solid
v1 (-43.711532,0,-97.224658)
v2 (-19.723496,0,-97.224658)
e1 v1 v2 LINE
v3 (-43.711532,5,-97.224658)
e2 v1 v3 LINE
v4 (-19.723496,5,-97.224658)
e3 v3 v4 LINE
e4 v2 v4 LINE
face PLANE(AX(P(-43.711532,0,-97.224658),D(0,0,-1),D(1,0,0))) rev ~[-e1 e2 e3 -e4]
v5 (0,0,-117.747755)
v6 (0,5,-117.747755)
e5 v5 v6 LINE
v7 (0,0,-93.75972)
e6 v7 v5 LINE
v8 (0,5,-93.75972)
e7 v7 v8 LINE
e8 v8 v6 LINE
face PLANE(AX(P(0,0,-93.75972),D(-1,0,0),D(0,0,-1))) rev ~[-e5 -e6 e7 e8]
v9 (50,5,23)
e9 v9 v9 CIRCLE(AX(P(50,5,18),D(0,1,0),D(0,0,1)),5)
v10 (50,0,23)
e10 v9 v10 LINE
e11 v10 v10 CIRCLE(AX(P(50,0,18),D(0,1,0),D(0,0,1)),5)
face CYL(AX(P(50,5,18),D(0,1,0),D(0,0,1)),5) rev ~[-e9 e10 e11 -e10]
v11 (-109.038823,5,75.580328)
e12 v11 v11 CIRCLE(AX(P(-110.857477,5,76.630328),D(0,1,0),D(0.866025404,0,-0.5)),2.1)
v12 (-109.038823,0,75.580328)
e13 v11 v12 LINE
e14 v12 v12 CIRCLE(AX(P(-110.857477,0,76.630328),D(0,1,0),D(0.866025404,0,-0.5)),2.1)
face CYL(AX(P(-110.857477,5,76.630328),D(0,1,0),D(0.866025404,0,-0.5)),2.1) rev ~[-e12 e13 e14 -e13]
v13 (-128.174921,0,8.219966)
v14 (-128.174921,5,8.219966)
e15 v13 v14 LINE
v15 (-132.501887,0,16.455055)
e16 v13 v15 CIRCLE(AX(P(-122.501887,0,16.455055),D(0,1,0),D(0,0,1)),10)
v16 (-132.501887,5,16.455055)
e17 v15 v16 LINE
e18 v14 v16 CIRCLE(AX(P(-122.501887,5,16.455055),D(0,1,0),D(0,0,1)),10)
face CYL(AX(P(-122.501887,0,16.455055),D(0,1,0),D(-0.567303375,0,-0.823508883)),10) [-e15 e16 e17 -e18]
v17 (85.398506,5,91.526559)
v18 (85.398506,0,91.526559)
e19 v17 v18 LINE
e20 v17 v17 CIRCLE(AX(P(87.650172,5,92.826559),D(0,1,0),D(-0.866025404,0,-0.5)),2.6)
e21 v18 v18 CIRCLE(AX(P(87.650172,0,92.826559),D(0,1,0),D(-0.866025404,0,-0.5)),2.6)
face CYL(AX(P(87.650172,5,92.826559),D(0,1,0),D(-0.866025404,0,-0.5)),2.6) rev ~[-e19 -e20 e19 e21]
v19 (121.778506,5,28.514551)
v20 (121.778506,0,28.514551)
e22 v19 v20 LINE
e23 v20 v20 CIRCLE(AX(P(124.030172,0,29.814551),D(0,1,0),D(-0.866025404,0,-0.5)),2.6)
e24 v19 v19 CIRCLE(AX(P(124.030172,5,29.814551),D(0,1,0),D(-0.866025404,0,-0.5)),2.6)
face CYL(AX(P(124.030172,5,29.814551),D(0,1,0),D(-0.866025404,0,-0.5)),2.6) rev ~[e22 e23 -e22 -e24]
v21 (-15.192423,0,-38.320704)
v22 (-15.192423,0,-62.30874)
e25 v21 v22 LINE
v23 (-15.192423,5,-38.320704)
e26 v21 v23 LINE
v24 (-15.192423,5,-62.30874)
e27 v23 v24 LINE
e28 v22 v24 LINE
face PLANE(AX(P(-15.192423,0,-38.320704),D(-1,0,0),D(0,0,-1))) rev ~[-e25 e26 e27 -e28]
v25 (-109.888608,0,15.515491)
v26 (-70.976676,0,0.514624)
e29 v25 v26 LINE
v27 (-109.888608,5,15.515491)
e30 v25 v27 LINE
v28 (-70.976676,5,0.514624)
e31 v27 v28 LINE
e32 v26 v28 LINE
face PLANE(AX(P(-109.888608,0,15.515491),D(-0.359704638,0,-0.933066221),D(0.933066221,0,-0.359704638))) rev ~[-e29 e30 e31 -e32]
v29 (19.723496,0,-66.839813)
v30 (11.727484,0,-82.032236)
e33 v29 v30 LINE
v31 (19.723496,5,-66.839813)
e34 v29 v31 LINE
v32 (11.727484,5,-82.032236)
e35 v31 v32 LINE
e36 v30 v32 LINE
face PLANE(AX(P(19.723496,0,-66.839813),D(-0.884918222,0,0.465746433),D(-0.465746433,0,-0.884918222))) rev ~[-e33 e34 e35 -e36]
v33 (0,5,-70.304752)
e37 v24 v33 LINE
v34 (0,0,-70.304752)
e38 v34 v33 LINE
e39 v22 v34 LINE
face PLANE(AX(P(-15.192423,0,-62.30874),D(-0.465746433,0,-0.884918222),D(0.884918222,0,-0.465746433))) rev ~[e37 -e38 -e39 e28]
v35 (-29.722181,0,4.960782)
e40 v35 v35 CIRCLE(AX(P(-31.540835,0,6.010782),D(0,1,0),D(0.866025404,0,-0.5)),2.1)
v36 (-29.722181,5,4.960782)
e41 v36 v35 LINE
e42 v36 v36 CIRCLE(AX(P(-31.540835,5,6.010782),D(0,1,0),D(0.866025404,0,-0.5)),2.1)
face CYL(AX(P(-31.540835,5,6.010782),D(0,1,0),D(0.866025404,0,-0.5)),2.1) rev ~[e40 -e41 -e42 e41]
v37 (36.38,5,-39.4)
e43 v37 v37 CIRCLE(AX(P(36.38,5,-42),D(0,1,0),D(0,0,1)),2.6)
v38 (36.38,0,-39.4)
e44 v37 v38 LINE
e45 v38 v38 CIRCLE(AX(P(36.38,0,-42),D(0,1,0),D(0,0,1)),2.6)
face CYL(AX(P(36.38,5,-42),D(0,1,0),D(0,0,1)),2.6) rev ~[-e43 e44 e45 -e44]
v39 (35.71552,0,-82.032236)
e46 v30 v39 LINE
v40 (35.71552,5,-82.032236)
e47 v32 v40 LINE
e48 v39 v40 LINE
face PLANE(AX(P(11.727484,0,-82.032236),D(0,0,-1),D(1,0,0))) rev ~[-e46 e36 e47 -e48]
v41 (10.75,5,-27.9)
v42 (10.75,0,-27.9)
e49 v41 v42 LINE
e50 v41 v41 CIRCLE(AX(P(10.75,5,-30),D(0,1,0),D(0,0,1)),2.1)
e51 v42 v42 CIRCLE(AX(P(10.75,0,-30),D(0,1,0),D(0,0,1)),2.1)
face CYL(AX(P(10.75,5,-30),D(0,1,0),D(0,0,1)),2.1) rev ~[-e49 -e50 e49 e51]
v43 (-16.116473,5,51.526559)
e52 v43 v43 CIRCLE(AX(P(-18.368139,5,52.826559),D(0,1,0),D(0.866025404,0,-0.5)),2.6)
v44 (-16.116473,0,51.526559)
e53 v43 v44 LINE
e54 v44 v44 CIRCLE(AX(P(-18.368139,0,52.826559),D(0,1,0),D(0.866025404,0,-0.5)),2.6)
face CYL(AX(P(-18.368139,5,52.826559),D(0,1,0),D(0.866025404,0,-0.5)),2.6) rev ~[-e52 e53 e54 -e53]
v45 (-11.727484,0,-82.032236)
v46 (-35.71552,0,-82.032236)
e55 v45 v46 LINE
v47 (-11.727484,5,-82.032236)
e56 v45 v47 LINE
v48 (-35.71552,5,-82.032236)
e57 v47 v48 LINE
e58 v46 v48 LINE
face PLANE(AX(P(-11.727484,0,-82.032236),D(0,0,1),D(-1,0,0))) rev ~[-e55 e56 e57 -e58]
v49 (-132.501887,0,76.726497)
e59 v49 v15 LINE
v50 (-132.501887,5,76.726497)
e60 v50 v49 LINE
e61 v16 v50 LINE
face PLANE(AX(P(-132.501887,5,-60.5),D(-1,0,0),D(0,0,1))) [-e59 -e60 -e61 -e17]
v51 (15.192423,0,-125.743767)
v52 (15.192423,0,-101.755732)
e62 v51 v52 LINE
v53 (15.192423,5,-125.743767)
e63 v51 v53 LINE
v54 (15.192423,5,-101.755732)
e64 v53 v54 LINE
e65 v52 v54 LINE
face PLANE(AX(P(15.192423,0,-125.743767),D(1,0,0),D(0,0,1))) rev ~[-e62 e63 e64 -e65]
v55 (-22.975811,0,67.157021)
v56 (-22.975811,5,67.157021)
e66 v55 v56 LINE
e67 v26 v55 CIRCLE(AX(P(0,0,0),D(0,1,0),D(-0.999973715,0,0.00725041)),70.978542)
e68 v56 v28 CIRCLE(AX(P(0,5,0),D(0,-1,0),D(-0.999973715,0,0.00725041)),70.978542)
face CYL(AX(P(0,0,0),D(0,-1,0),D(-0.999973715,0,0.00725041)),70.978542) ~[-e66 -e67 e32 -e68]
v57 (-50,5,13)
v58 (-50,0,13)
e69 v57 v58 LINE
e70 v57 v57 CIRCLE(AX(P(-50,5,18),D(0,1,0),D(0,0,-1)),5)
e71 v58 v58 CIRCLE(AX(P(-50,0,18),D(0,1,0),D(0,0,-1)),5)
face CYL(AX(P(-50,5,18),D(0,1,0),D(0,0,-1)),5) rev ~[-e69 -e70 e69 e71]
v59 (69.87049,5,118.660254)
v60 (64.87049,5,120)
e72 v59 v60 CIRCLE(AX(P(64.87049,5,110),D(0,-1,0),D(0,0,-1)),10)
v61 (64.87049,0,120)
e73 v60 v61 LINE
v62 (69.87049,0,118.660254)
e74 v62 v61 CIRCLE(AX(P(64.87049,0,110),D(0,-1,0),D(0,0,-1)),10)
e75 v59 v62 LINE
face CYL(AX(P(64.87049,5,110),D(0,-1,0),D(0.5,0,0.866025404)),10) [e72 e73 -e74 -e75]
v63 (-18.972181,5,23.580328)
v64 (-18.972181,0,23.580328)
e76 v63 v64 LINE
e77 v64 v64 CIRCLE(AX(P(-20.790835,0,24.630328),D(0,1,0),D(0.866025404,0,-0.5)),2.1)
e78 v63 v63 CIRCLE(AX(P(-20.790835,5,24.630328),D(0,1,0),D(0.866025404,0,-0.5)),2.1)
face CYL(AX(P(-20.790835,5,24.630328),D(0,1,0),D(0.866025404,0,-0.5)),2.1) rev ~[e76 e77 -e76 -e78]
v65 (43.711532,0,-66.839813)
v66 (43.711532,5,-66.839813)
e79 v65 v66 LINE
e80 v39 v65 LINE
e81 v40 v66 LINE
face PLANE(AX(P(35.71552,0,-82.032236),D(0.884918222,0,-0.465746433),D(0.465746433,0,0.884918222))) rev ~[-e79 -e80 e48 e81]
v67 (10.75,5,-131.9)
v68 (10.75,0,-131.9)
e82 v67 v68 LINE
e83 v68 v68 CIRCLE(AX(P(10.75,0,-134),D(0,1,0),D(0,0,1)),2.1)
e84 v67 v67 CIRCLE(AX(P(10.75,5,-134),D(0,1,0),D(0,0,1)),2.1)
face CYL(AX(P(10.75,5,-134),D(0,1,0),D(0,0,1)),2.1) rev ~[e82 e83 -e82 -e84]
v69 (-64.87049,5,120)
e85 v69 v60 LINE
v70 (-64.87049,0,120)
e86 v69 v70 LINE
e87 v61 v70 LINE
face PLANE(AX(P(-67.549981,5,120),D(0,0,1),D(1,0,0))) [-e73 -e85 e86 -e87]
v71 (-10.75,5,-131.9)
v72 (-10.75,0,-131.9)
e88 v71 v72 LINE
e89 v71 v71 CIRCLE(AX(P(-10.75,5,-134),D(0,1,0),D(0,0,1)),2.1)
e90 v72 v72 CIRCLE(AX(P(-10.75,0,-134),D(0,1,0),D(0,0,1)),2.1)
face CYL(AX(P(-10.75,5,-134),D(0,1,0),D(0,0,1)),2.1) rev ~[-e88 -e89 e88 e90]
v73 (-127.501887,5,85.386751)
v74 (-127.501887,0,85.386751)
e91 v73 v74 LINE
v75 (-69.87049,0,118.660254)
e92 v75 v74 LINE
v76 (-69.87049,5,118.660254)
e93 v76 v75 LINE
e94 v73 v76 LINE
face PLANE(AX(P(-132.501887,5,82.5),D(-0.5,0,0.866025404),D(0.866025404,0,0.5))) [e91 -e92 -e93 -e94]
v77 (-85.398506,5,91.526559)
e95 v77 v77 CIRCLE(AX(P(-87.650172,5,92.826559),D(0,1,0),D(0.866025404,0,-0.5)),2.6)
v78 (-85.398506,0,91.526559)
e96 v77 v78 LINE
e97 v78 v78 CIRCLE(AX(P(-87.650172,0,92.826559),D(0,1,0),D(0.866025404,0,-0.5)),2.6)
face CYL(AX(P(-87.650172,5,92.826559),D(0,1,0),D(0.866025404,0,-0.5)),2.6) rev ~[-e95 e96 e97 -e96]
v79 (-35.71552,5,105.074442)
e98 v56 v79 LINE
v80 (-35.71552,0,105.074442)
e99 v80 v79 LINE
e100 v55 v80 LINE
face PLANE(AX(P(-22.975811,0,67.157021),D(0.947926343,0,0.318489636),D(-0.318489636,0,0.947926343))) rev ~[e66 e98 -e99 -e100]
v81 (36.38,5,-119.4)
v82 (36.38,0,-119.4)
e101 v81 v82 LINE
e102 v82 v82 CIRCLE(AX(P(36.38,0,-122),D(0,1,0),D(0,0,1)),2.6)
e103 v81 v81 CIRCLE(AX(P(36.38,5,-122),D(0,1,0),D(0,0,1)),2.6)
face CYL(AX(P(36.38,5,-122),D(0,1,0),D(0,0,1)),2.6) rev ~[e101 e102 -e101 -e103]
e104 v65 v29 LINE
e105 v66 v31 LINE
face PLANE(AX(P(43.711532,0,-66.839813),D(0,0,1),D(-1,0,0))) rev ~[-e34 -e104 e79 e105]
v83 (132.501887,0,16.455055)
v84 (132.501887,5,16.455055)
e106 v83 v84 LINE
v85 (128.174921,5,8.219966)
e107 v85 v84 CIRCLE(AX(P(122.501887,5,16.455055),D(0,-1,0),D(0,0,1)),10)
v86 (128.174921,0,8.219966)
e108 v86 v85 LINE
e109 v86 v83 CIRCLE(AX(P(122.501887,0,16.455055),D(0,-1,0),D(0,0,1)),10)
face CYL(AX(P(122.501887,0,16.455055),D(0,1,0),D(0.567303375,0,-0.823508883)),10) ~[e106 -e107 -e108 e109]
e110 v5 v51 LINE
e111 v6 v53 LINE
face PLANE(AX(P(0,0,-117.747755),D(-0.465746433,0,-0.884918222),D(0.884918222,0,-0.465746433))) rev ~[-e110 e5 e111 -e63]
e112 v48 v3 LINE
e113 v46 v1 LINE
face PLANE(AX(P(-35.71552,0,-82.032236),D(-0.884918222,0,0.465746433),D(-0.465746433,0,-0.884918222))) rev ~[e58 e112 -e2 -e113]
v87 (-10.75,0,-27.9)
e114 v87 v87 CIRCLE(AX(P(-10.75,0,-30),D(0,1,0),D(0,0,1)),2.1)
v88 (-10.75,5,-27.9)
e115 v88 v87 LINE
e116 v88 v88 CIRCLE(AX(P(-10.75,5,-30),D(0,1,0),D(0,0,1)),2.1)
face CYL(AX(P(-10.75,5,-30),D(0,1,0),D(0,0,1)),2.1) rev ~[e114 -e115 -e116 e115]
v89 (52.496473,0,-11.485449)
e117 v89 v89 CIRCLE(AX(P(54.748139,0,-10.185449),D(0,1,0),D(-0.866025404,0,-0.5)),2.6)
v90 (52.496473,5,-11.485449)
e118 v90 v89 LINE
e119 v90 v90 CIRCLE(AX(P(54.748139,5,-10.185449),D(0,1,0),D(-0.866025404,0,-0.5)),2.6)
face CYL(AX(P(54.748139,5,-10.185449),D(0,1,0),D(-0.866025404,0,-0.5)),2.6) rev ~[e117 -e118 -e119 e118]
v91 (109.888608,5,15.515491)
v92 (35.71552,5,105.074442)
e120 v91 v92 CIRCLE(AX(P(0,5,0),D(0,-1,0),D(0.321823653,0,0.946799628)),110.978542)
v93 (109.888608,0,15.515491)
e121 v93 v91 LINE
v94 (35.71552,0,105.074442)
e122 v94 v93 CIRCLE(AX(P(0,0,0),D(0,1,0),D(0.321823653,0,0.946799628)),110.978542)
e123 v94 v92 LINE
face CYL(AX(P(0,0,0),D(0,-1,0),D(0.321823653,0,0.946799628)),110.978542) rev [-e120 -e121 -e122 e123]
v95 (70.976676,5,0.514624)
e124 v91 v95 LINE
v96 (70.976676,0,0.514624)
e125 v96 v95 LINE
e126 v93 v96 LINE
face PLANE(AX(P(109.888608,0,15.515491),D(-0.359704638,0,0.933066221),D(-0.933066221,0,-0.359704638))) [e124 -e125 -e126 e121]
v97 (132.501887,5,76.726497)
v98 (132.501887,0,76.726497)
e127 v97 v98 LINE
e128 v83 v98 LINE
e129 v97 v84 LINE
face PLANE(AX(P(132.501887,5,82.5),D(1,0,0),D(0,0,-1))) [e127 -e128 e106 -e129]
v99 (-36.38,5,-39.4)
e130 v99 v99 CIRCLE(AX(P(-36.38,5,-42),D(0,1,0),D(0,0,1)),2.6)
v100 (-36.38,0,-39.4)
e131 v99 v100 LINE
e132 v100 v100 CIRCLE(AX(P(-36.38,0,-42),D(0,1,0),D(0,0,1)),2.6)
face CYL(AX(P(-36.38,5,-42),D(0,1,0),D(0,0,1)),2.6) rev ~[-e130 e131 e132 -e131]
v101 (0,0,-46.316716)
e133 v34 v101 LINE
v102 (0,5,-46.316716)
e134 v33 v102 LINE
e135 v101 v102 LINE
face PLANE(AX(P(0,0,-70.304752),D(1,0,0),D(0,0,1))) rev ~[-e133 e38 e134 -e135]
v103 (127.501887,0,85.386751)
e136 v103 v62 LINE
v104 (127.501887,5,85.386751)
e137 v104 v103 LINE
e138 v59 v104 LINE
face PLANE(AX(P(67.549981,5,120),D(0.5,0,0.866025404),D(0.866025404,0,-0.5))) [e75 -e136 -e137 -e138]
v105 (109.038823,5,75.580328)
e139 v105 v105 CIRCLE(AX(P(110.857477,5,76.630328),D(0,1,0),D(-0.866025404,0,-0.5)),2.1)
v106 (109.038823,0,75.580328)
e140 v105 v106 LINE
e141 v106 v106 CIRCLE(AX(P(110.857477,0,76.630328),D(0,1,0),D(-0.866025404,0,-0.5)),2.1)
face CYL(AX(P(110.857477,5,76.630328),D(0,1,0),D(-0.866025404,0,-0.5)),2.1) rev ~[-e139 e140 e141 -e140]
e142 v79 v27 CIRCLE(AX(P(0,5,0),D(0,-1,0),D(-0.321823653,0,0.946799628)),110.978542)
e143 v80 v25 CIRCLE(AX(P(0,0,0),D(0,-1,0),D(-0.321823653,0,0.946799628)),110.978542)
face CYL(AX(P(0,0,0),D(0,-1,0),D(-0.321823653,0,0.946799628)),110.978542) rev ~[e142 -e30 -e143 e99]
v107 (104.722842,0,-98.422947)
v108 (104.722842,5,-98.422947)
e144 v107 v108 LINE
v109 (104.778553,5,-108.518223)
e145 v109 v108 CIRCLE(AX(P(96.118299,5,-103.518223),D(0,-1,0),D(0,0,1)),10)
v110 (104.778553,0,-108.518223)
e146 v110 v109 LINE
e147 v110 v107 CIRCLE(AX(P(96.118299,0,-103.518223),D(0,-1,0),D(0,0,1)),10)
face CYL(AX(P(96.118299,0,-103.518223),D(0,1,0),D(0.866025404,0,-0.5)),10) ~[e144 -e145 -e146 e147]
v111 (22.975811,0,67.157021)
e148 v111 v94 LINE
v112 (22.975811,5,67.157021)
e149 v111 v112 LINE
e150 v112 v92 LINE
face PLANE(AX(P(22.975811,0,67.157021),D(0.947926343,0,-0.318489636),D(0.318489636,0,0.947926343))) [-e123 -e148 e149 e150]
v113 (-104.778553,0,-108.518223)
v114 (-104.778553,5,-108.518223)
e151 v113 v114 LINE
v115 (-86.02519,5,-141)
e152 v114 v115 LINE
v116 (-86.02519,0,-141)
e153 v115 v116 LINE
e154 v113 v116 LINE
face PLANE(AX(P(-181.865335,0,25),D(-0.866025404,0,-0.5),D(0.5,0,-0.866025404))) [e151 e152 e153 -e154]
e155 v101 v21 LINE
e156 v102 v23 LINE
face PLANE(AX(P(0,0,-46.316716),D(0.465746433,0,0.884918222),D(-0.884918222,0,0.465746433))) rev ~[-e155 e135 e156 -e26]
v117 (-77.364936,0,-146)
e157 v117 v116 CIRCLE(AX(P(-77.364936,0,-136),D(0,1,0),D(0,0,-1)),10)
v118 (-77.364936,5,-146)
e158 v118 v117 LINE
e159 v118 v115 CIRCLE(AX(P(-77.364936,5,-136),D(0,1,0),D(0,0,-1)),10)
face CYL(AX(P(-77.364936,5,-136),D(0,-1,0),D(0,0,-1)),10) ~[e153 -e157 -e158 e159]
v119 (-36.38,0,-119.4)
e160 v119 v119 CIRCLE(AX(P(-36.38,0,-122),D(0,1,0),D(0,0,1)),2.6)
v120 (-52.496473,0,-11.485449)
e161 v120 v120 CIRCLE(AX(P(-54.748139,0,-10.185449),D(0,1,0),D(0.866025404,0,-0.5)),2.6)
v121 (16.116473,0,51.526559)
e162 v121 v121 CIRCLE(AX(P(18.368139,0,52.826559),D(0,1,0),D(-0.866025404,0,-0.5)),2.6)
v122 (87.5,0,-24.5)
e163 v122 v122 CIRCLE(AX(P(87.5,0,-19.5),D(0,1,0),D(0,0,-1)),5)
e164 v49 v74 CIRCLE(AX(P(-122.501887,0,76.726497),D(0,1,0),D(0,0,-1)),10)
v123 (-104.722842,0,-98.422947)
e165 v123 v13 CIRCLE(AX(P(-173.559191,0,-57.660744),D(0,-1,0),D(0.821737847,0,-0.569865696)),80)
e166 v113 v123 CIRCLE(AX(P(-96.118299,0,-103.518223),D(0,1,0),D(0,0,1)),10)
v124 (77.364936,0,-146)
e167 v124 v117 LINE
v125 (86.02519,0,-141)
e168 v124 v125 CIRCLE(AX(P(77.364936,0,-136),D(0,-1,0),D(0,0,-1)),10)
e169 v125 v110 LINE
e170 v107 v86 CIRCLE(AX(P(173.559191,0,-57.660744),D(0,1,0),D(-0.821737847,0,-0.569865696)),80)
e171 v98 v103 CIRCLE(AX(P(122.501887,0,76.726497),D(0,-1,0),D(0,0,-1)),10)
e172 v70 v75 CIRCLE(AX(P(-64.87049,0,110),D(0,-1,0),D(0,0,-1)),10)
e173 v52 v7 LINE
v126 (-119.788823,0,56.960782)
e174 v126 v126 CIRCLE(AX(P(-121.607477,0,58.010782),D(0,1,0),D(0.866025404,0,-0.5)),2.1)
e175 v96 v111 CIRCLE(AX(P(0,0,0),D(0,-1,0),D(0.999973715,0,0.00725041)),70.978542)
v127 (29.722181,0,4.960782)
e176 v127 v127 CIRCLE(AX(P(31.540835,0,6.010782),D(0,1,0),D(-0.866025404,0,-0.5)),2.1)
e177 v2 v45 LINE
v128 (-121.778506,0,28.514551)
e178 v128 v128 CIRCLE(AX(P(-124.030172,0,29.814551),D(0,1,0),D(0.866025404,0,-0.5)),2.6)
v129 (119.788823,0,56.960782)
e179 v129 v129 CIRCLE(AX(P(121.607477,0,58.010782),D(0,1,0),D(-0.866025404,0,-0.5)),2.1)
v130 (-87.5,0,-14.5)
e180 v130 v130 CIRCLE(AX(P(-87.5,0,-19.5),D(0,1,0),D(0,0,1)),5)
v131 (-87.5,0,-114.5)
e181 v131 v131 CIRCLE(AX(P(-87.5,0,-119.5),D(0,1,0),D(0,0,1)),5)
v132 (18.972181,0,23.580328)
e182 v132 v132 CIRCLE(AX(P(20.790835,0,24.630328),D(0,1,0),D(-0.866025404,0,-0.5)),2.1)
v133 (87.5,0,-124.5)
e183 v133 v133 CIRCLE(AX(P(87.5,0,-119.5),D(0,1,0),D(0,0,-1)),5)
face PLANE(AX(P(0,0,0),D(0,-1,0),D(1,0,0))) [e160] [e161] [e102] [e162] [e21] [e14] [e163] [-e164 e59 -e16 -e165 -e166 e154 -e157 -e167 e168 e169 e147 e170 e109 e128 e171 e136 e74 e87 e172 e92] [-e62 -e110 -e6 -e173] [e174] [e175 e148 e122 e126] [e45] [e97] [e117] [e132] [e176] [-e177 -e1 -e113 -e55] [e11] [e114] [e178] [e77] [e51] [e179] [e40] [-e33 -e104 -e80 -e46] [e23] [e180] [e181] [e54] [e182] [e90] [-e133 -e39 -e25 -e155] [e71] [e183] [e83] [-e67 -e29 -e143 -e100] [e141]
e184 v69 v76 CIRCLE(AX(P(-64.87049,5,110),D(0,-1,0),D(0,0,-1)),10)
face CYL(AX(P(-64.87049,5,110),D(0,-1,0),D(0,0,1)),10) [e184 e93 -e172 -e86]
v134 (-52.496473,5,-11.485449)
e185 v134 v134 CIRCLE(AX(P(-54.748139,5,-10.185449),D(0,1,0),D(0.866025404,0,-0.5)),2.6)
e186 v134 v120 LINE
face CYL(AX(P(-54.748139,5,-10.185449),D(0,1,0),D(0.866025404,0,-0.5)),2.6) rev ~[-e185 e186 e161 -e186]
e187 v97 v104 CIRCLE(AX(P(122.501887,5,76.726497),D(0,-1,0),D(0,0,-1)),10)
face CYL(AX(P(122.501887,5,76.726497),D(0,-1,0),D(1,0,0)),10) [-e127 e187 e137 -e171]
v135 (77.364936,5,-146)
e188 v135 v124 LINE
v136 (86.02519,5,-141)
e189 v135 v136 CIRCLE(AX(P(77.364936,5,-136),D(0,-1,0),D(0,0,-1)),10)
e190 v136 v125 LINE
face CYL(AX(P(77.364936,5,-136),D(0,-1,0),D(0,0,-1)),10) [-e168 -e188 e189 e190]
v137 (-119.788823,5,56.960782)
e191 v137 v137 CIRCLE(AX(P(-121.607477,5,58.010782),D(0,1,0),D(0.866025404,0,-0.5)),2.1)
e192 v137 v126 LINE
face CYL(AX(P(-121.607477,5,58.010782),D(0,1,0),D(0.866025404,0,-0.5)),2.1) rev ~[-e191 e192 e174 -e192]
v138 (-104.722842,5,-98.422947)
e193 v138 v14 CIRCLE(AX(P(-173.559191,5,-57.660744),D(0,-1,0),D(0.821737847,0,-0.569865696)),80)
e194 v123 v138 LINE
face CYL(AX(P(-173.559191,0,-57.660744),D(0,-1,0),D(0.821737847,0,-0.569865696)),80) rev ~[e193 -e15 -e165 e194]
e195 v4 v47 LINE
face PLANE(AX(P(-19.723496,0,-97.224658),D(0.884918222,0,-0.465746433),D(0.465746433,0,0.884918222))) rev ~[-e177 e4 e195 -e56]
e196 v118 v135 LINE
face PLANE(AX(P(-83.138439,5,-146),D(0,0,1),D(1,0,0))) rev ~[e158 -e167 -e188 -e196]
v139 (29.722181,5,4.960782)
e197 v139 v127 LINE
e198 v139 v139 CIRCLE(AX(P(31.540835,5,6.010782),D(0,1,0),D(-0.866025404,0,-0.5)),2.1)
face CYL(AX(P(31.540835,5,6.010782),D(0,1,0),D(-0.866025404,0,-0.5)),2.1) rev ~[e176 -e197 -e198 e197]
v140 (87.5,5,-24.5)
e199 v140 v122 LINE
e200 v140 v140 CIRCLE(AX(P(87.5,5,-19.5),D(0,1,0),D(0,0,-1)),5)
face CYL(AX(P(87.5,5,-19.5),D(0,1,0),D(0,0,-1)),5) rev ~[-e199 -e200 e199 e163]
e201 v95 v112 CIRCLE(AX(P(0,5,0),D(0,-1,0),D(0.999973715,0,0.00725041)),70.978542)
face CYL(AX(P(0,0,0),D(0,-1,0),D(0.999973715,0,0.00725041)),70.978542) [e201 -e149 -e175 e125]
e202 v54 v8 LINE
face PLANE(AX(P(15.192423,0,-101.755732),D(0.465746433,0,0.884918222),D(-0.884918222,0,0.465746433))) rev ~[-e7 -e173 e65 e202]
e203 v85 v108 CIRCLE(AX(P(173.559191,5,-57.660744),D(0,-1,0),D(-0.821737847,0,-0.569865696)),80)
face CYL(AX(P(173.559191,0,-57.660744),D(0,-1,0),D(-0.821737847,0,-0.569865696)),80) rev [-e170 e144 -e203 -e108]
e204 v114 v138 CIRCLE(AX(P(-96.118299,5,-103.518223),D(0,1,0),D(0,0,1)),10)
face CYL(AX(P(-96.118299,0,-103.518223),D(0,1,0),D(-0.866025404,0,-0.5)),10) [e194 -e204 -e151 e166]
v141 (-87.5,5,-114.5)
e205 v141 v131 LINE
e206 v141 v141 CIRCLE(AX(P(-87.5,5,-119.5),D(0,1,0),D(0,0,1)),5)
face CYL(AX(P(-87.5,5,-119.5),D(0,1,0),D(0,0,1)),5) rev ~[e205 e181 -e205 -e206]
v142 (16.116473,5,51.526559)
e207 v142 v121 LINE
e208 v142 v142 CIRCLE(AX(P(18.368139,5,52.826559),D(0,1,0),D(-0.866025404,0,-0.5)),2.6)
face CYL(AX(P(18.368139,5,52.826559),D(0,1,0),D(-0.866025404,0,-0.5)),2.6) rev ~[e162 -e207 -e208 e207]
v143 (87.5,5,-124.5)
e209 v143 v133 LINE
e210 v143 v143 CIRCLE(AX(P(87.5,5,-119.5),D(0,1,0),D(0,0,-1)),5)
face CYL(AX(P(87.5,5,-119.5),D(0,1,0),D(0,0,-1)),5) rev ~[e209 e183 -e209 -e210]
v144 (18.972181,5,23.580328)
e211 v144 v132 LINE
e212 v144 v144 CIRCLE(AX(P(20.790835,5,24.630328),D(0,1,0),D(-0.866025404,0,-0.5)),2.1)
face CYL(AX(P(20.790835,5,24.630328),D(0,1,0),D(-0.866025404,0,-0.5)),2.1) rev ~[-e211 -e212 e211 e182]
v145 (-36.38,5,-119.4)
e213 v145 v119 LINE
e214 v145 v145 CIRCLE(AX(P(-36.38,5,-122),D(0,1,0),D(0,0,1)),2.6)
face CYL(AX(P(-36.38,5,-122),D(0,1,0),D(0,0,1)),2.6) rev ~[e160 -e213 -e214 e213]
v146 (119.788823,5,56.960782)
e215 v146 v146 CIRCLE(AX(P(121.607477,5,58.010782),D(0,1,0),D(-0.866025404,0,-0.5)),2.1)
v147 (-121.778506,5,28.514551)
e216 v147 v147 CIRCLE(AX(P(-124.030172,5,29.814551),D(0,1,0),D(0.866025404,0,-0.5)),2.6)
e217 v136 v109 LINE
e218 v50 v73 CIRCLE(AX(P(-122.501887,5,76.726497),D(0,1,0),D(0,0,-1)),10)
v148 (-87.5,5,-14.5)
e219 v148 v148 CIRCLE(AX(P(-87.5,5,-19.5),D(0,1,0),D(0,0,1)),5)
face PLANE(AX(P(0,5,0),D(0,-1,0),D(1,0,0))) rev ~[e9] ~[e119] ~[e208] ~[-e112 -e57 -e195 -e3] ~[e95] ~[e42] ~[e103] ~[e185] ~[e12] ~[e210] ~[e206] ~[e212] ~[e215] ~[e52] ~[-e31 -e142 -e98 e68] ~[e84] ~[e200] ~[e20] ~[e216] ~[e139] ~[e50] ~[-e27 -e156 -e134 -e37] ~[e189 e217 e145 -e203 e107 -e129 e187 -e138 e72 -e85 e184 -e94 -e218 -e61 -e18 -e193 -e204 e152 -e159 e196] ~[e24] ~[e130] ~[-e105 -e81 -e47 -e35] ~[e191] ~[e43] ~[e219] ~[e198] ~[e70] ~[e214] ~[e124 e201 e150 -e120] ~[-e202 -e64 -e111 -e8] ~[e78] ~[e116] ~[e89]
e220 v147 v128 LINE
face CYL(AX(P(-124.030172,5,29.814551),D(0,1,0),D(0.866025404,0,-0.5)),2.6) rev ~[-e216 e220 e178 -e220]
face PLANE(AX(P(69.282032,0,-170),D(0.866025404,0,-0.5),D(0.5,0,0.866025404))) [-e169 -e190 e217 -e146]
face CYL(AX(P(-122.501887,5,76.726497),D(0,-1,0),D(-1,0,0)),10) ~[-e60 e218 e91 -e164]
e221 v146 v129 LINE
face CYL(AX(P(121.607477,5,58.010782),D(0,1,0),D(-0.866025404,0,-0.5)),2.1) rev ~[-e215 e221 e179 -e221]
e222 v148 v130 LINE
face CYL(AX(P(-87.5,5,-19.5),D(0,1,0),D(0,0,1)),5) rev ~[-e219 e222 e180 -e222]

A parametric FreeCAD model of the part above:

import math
import FreeCAD as App
import Part
import Sketcher

V = App.Vector
Q = App.Units.Quantity


def edges_at(feature, points):
    """Names of the edges that pass closest to the given points."""
    edges = feature.Shape.Edges
    near = lambda p: min(range(len(edges)), key=lambda i: edges[i].distToShape(Part.Vertex(*p))[0])
    return sorted({f"Edge{near(p) + 1}" for p in points})

doc = App.newDocument("Part")
body = doc.addObject("PartDesign::Body", "Body")

sketch1 = body.newObject("Sketcher::SketchObject", "Sketch")
sketch1.AttachmentSupport = (doc.getObject("XZ_Plane"), [""])
sketch1.MapMode = "FlatFace"
sketch1.addGeometry(Part.LineSegment(V(-35, -150, 0), V(-147, 45, 0)), False)
sketch1.addGeometry(Part.ArcOfCircle(Part.Circle(V(-113, 65, 0), V(0, 0, 1), 40), math.radians(90), math.radians(210)), False)
sketch1.addGeometry(Part.LineSegment(V(-113, 105, 0), V(113, 105, 0)), False)
sketch1.addGeometry(Part.ArcOfCircle(Part.Circle(V(113, 65, 0), V(0, 0, 1), 40), math.radians(-30), math.radians(90)), False)
sketch1.addGeometry(Part.LineSegment(V(147, 45, 0), V(35, -150, 0)), False)
sketch1.addGeometry(Part.ArcOfCircle(Part.Circle(V(0, -130, 0), V(0, 0, 1), 40), math.radians(-150), math.radians(-30)), False)
sketch1.addConstraint(Sketcher.Constraint("Tangent", 0, 2, 1, 2))
sketch1.addConstraint(Sketcher.Constraint("Tangent", 1, 1, 2, 1))
sketch1.addConstraint(Sketcher.Constraint("Tangent", 2, 2, 3, 2))
sketch1.addConstraint(Sketcher.Constraint("Tangent", 3, 1, 4, 1))
sketch1.addConstraint(Sketcher.Constraint("Tangent", 4, 2, 5, 2))
sketch1.addConstraint(Sketcher.Constraint("Tangent", 5, 1, 0, 1))
sketch1.addConstraint(Sketcher.Constraint("Horizontal", 2))
sketch1.addConstraint(Sketcher.Constraint("Equal", 1, 3))
sketch1.addConstraint(Sketcher.Constraint("Equal", 3, 5))
sketch1.addConstraint(Sketcher.Constraint("Symmetric", 0, 2, 3, 1, -2))
sketch1.addConstraint(Sketcher.Constraint("Radius", 1, 40.0))
sketch1.addConstraint(Sketcher.Constraint("Angle", 0, Q("120 deg")))
sketch1.addConstraint(Sketcher.Constraint("DistanceY", -1, 1, 1, 3, 65.0))
sketch1.addConstraint(Sketcher.Constraint("DistanceY", 5, 3, -1, 1, 130.0))
pad1 = body.newObject("PartDesign::Pad", "Pad")
pad1.Profile = sketch1
pad1.Length = 5
pad1.Reversed = True

sketch2 = body.newObject("Sketcher::SketchObject", "Sketch001")
sketch2.AttachmentSupport = (doc.getObject("XZ_Plane"), [""])
sketch2.MapMode = "FlatFace"
sketch2.AttachmentOffset = App.Placement(V(0, 0, -5), App.Rotation())
sketch2.addGeometry(Part.Circle(V(-10.8, -30, 0), V(0, 0, 1), 2.1), False)
sketch2.addGeometry(Part.Circle(V(-10.8, -134, 0), V(0, 0, 1), 2.1), False)
sketch2.addGeometry(Part.Circle(V(10.8, -30, 0), V(0, 0, 1), 2.1), False)
sketch2.addGeometry(Part.Circle(V(10.8, -134, 0), V(0, 0, 1), 2.1), False)
sketch2.addGeometry(Part.Circle(V(-36.4, -42, 0), V(0, 0, 1), 2.6), False)
sketch2.addGeometry(Part.Circle(V(-36.4, -122, 0), V(0, 0, 1), 2.6), False)
sketch2.addGeometry(Part.Circle(V(36.4, -122, 0), V(0, 0, 1), 2.6), False)
sketch2.addGeometry(Part.Circle(V(36.4, -42, 0), V(0, 0, 1), 2.6), False)
sketch2.addConstraint(Sketcher.Constraint("Equal", 0, 1))
sketch2.addConstraint(Sketcher.Constraint("Equal", 1, 2))
sketch2.addConstraint(Sketcher.Constraint("Equal", 2, 3))
sketch2.addConstraint(Sketcher.Constraint("Equal", 4, 5))
sketch2.addConstraint(Sketcher.Constraint("Equal", 5, 6))
sketch2.addConstraint(Sketcher.Constraint("Equal", 6, 7))
sketch2.addConstraint(Sketcher.Constraint("Symmetric", 0, 3, 2, 3, -2))
sketch2.addConstraint(Sketcher.Constraint("Symmetric", 1, 3, 3, 3, -2))
sketch2.addConstraint(Sketcher.Constraint("Symmetric", 5, 3, 6, 3, -2))
sketch2.addConstraint(Sketcher.Constraint("Symmetric", 4, 3, 7, 3, -2))
sketch2.addConstraint(Sketcher.Constraint("Vertical", 0, 3, 1, 3))
sketch2.addConstraint(Sketcher.Constraint("Vertical", 4, 3, 5, 3))
sketch2.addConstraint(Sketcher.Constraint("Diameter", 0, 4.2))
sketch2.addConstraint(Sketcher.Constraint("Diameter", 4, 5.2))
sketch2.addConstraint(Sketcher.Constraint("DistanceY", 0, 3, -1, 1, 30.0))
sketch2.addConstraint(Sketcher.Constraint("DistanceY", 1, 3, -1, 1, 134.0))
sketch2.addConstraint(Sketcher.Constraint("DistanceY", 4, 3, -1, 1, 42.0))
sketch2.addConstraint(Sketcher.Constraint("DistanceY", 5, 3, -1, 1, 122.0))
sketch2.addConstraint(Sketcher.Constraint("DistanceX", 0, 3, 2, 3, 21.5))
sketch2.addConstraint(Sketcher.Constraint("DistanceX", 4, 3, -1, 1, 36.38))
pocket1 = body.newObject("PartDesign::Pocket", "Pocket")
pocket1.Profile = sketch2
pocket1.Length = 10
pocket1.Reversed = True
doc.recompute()

datumline = body.newObject("PartDesign::Line", "DatumLine")
datumline.Placement = App.Placement(V(0, 0, 0.213703), App.Rotation(V(0, 0, 1), V(0, 1, 0)))
polarpattern = body.newObject("PartDesign::PolarPattern", "PolarPattern")
polarpattern.Originals = [pocket1]
polarpattern.Axis = (datumline, [""])
polarpattern.Angle = 360
polarpattern.Occurrences = 3
body.Tip = polarpattern

sketch3 = body.newObject("Sketcher::SketchObject", "Sketch002")
sketch3.AttachmentSupport = (doc.getObject("XZ_Plane"), [""])
sketch3.MapMode = "FlatFace"
sketch3.addGeometry(Part.LineSegment(V(69, -170, 0), V(182, 25, 0)), False)
sketch3.addGeometry(Part.ArcOfCircle(Part.Circle(V(113, 65, 0), V(0, 0, 1), 80), math.radians(-30), math.radians(90)), False)
sketch3.addGeometry(Part.LineSegment(V(113, 145, 0), V(-113, 145, 0)), False)
sketch3.addGeometry(Part.ArcOfCircle(Part.Circle(V(-113, 65, 0), V(0, 0, 1), 80), math.radians(90), math.radians(210)), False)
sketch3.addGeometry(Part.LineSegment(V(-182, 25, 0), V(-69, -170, 0)), False)
sketch3.addGeometry(Part.ArcOfCircle(Part.Circle(V(0, -130, 0), V(0, 0, 1), 80), math.radians(-150), math.radians(-30)), False)
sketch3.addGeometry(Part.LineSegment(V(-35, -150, 0), V(-147, 45, 0)), False)
sketch3.addGeometry(Part.ArcOfCircle(Part.Circle(V(-113, 65, 0), V(0, 0, 1), 40), math.radians(90), math.radians(210)), False)
sketch3.addGeometry(Part.LineSegment(V(-113, 105, 0), V(113, 105, 0)), False)
sketch3.addGeometry(Part.ArcOfCircle(Part.Circle(V(113, 65, 0), V(0, 0, 1), 40), math.radians(-30), math.radians(90)), False)
sketch3.addGeometry(Part.LineSegment(V(147, 45, 0), V(35, -150, 0)), False)
sketch3.addGeometry(Part.ArcOfCircle(Part.Circle(V(0, -130, 0), V(0, 0, 1), 40), math.radians(-150), math.radians(-30)), False)
sketch3.addConstraint(Sketcher.Constraint("Tangent", 0, 2, 1, 1))
sketch3.addConstraint(Sketcher.Constraint("Tangent", 1, 2, 2, 1))
sketch3.addConstraint(Sketcher.Constraint("Tangent", 2, 2, 3, 1))
sketch3.addConstraint(Sketcher.Constraint("Tangent", 3, 2, 4, 1))
sketch3.addConstraint(Sketcher.Constraint("Tangent", 4, 2, 5, 1))
sketch3.addConstraint(Sketcher.Constraint("Tangent", 5, 2, 0, 1))
sketch3.addConstraint(Sketcher.Constraint("Tangent", 6, 2, 7, 2))
sketch3.addConstraint(Sketcher.Constraint("Tangent", 7, 1, 8, 1))
sketch3.addConstraint(Sketcher.Constraint("Tangent", 8, 2, 9, 2))
sketch3.addConstraint(Sketcher.Constraint("Tangent", 9, 1, 10, 1))
sketch3.addConstraint(Sketcher.Constraint("Tangent", 10, 2, 11, 2))
sketch3.addConstraint(Sketcher.Constraint("Tangent", 11, 1, 6, 1))
sketch3.addConstraint(Sketcher.Constraint("Horizontal", 2))
sketch3.addConstraint(Sketcher.Constraint("Horizontal", 8))
sketch3.addConstraint(Sketcher.Constraint("Coincident", 7, 3, 3, 3))
sketch3.addConstraint(Sketcher.Constraint("Coincident", 9, 3, 1, 3))
sketch3.addConstraint(Sketcher.Constraint("Coincident", 11, 3, 5, 3))
sketch3.addConstraint(Sketcher.Constraint("Equal", 1, 3))
sketch3.addConstraint(Sketcher.Constraint("Equal", 3, 5))
sketch3.addConstraint(Sketcher.Constraint("Equal", 9, 11))
sketch3.addConstraint(Sketcher.Constraint("Symmetric", 0, 2, 3, 2, -2))
sketch3.addConstraint(Sketcher.Constraint("Radius", 1, 80.0))
sketch3.addConstraint(Sketcher.Constraint("Radius", 7, 40.0))
sketch3.addConstraint(Sketcher.Constraint("Angle", 0, Q("60 deg")))
sketch3.addConstraint(Sketcher.Constraint("DistanceY", -1, 1, 1, 3, 65.0))
sketch3.addConstraint(Sketcher.Constraint("DistanceY", 5, 3, -1, 1, 130.0))
pad2 = body.newObject("PartDesign::Pad", "Pad001")
pad2.Profile = sketch3
pad2.Length = 5
pad2.Reversed = True

sketch4 = body.newObject("Sketcher::SketchObject", "Sketch003")
sketch4.AttachmentSupport = (doc.getObject("XZ_Plane"), [""])
sketch4.MapMode = "FlatFace"
sketch4.AttachmentOffset = App.Placement(V(0, 0, -5), App.Rotation())
sketch4.addGeometry(Part.Circle(V(-88, -120, 0), V(0, 0, 1), 5), False)
sketch4.addGeometry(Part.Circle(V(-88, -20, 0), V(0, 0, 1), 5), False)
sketch4.addGeometry(Part.Circle(V(88, -20, 0), V(0, 0, 1), 5), False)
sketch4.addGeometry(Part.Circle(V(88, -120, 0), V(0, 0, 1), 5), False)
sketch4.addGeometry(Part.Circle(V(-50, 18, 0), V(0, 0, 1), 5), False)
sketch4.addGeometry(Part.Circle(V(50, 18, 0), V(0, 0, 1), 5), False)
sketch4.addConstraint(Sketcher.Constraint("Equal", 0, 1))
sketch4.addConstraint(Sketcher.Constraint("Equal", 1, 2))
sketch4.addConstraint(Sketcher.Constraint("Equal", 2, 3))
sketch4.addConstraint(Sketcher.Constraint("Equal", 3, 4))
sketch4.addConstraint(Sketcher.Constraint("Equal", 4, 5))
sketch4.addConstraint(Sketcher.Constraint("Symmetric", 1, 3, 2, 3, -2))
sketch4.addConstraint(Sketcher.Constraint("Symmetric", 0, 3, 3, 3, -2))
sketch4.addConstraint(Sketcher.Constraint("Symmetric", 4, 3, 5, 3, -2))
sketch4.addConstraint(Sketcher.Constraint("Vertical", 0, 3, 1, 3))
sketch4.addConstraint(Sketcher.Constraint("Diameter", 0, 10.0))
sketch4.addConstraint(Sketcher.Constraint("DistanceX", 4, 3, -1, 1, 50.0))
sketch4.addConstraint(Sketcher.Constraint("DistanceY", -1, 1, 4, 3, 18.0))
sketch4.addConstraint(Sketcher.Constraint("DistanceY", 0, 3, 1, 3, 100.0))
sketch4.addConstraint(Sketcher.Constraint("DistanceX", 1, 3, 2, 3, 175.0))
sketch4.addConstraint(Sketcher.Constraint("DistanceY", 0, 3, -1, 1, 119.5))
pocket2 = body.newObject("PartDesign::Pocket", "Pocket001")
pocket2.Profile = sketch4
pocket2.Type = "ThroughAll"
pocket2.Reversed = True

sketch5 = body.newObject("Sketcher::SketchObject", "Sketch004")
sketch5.AttachmentSupport = (doc.getObject("XZ_Plane"), [""])
sketch5.MapMode = "FlatFace"
sketch5.AttachmentOffset = App.Placement(V(0, 0, -5), App.Rotation())
sketch5.addGeometry(Part.LineSegment(V(-83.138439, -146, 0), V(83.138439, -146, 0)), False)
sketch5.addGeometry(Part.LineSegment(V(83.138439, -146, 0), V(69.282032, -170, 0)), False)
sketch5.addGeometry(Part.ArcOfCircle(Part.Circle(V(0, -130, 0), V(0, 0, 1), 80), math.radians(-150), math.radians(-30)), False)
sketch5.addGeometry(Part.LineSegment(V(-69.282032, -170, 0), V(-83.138439, -146, 0)), False)
sketch5.addConstraint(Sketcher.Constraint("Coincident", 0, 2, 1, 1))
sketch5.addConstraint(Sketcher.Constraint("Tangent", 1, 2, 2, 2))
sketch5.addConstraint(Sketcher.Constraint("Tangent", 2, 1, 3, 1))
sketch5.addConstraint(Sketcher.Constraint("Coincident", 3, 2, 0, 1))
sketch5.addConstraint(Sketcher.Constraint("Horizontal", 0))
sketch5.addConstraint(Sketcher.Constraint("Symmetric", 1, 2, 2, 1, -2))
sketch5.addConstraint(Sketcher.Constraint("Radius", 2, 80.0))
sketch5.addConstraint(Sketcher.Constraint("Angle", 1, Q("-120 deg")))
sketch5.addConstraint(Sketcher.Constraint("DistanceY", 2, 3, -1, 1, 130.0))
sketch5.addConstraint(Sketcher.Constraint("DistanceY", 0, 2, -1, 1, 146.0))
pocket3 = body.newObject("PartDesign::Pocket", "Pocket002")
pocket3.Profile = sketch5
pocket3.Type = "ThroughAll"
pocket3.Reversed = True

sketch6 = body.newObject("Sketcher::SketchObject", "Sketch005")
sketch6.AttachmentSupport = (doc.getObject("XZ_Plane"), [""])
sketch6.MapMode = "FlatFace"
sketch6.AttachmentOffset = App.Placement(V(0, 0, -5), App.Rotation())
sketch6.addGeometry(Part.LineSegment(V(-133, 82, 0), V(-133, -60, 0)), False)
sketch6.addGeometry(Part.LineSegment(V(-133, -60, 0), V(-182, 25, 0)), False)
sketch6.addGeometry(Part.ArcOfCircle(Part.Circle(V(-113, 65, 0), V(0, 0, 1), 80), math.radians(90), math.radians(210)), False)
sketch6.addGeometry(Part.LineSegment(V(-113, 145, 0), V(113, 145, 0)), False)
sketch6.addGeometry(Part.ArcOfCircle(Part.Circle(V(113, 65, 0), V(0, 0, 1), 80), math.radians(-30), math.radians(90)), False)
sketch6.addGeometry(Part.LineSegment(V(182, 25, 0), V(133, -60, 0)), False)
sketch6.addGeometry(Part.LineSegment(V(133, -60, 0), V(133, 82, 0)), False)
sketch6.addGeometry(Part.LineSegment(V(133, 82, 0), V(68, 120, 0)), False)
sketch6.addGeometry(Part.LineSegment(V(68, 120, 0), V(-68, 120, 0)), False)
sketch6.addGeometry(Part.LineSegment(V(-68, 120, 0), V(-133, 82, 0)), False)
sketch6.addConstraint(Sketcher.Constraint("Coincident", 0, 2, 1, 1))
sketch6.addConstraint(Sketcher.Constraint("Tangent", 1, 2, 2, 2))
sketch6.addConstraint(Sketcher.Constraint("Tangent", 2, 1, 3, 1))
sketch6.addConstraint(Sketcher.Constraint("Tangent", 3, 2, 4, 2))
sketch6.addConstraint(Sketcher.Constraint("Tangent", 4, 1, 5, 1))
sketch6.addConstraint(Sketcher.Constraint("Coincident", 5, 2, 6, 1))
sketch6.addConstraint(Sketcher.Constraint("Coincident", 6, 2, 7, 1))
sketch6.addConstraint(Sketcher.Constraint("Coincident", 7, 2, 8, 1))
sketch6.addConstraint(Sketcher.Constraint("Coincident", 8, 2, 9, 1))
sketch6.addConstraint(Sketcher.Constraint("Coincident", 9, 2, 0, 1))
sketch6.addConstraint(Sketcher.Constraint("Vertical", 0))
sketch6.addConstraint(Sketcher.Constraint("Horizontal", 3))
sketch6.addConstraint(Sketcher.Constraint("Vertical", 6))
sketch6.addConstraint(Sketcher.Constraint("Horizontal", 8))
sketch6.addConstraint(Sketcher.Constraint("Equal", 2, 4))
sketch6.addConstraint(Sketcher.Constraint("Symmetric", 1, 2, 4, 1, -2))
sketch6.addConstraint(Sketcher.Constraint("Symmetric", 6, 2, 9, 2, -2))
sketch6.addConstraint(Sketcher.Constraint("Perpendicular", 5, 7))
sketch6.addConstraint(Sketcher.Constraint("Perpendicular", 1, 9))
sketch6.addConstraint(Sketcher.Constraint("Radius", 2, 80.0))
sketch6.addConstraint(Sketcher.Constraint("DistanceY", 0, 2, 0, 1, 143.0))
sketch6.addConstraint(Sketcher.Constraint("Angle", 1, Q("120 deg")))
sketch6.addConstraint(Sketcher.Constraint("Distance", 7, 75.0))
sketch6.addConstraint(Sketcher.Constraint("DistanceY", -1, 1, 2, 3, 65.0))
sketch6.addConstraint(Sketcher.Constraint("DistanceY", -1, 1, 7, 2, 120.0))
sketch6.addConstraint(Sketcher.Constraint("DistanceX", 3, 1, 3, 2, 225.166605))
pocket4 = body.newObject("PartDesign::Pocket", "Pocket003")
pocket4.Profile = sketch6
pocket4.Type = "ThroughAll"
pocket4.Reversed = True

sketch7 = body.newObject("Sketcher::SketchObject", "Sketch006")
sketch7.AttachmentSupport = (doc.getObject("XZ_Plane"), [""])
sketch7.MapMode = "FlatFace"
sketch7.addGeometry(Part.LineSegment(V(-133, 11, 0), V(-133, -60, 0)), False)
sketch7.addGeometry(Part.LineSegment(V(-133, -60, 0), V(-108, -103, 0)), False)
sketch7.addGeometry(Part.ArcOfCircle(Part.Circle(V(-174, -58, 0), V(0, 0, 1), 80), math.radians(-35), math.radians(59)), False)
sketch7.addGeometry(Part.LineSegment(V(133, -60, 0), V(133, 11, 0)), False)
sketch7.addGeometry(Part.ArcOfCircle(Part.Circle(V(174, -58, 0), V(0, 0, 1), 80), math.radians(121), math.radians(215)), False)
sketch7.addGeometry(Part.LineSegment(V(108, -103, 0), V(133, -60, 0)), False)
sketch7.addGeometry(Part.LineSegment(V(0, -94, 0), V(0, -118, 0)), False)
sketch7.addGeometry(Part.LineSegment(V(0, -118, 0), V(15, -126, 0)), False)
sketch7.addGeometry(Part.LineSegment(V(15, -126, 0), V(15, -102, 0)), False)
sketch7.addGeometry(Part.LineSegment(V(15, -102, 0), V(0, -94, 0)), False)
sketch7.addGeometry(Part.LineSegment(V(-12, -82, 0), V(-36, -82, 0)), False)
sketch7.addGeometry(Part.LineSegment(V(-36, -82, 0), V(-44, -97, 0)), False)
sketch7.addGeometry(Part.LineSegment(V(-44, -97, 0), V(-20, -97, 0)), False)
sketch7.addGeometry(Part.LineSegment(V(-20, -97, 0), V(-12, -82, 0)), False)
sketch7.addGeometry(Part.LineSegment(V(0, -70, 0), V(0, -46, 0)), False)
sketch7.addGeometry(Part.LineSegment(V(0, -46, 0), V(-15, -38, 0)), False)
sketch7.addGeometry(Part.LineSegment(V(-15, -38, 0), V(-15, -62, 0)), False)
sketch7.addGeometry(Part.LineSegment(V(-15, -62, 0), V(0, -70, 0)), False)
sketch7.addGeometry(Part.LineSegment(V(12, -82, 0), V(36, -82, 0)), False)
sketch7.addGeometry(Part.LineSegment(V(36, -82, 0), V(44, -67, 0)), False)
sketch7.addGeometry(Part.LineSegment(V(44, -67, 0), V(20, -67, 0)), False)
sketch7.addGeometry(Part.LineSegment(V(20, -67, 0), V(12, -82, 0)), False)
sketch7.addGeometry(Part.LineSegment(V(-110, 16, 0), V(-71, 1, 0)), False)
sketch7.addGeometry(Part.ArcOfCircle(Part.Circle(V(0, 0, 0), V(0, 0, 1), 71), math.radians(109), math.radians(180)), False)
sketch7.addGeometry(Part.LineSegment(V(-23, 67, 0), V(-36, 105, 0)), False)
sketch7.addGeometry(Part.ArcOfCircle(Part.Circle(V(0, 0, 0), V(0, 0, 1), 111), math.radians(109), math.radians(172)), False)
sketch7.addGeometry(Part.LineSegment(V(71, 1, 0), V(110, 16, 0)), False)
sketch7.addGeometry(Part.ArcOfCircle(Part.Circle(V(0, 0, 0), V(0, 0, 1), 111), math.radians(8), math.radians(71)), False)
sketch7.addGeometry(Part.LineSegment(V(36, 105, 0), V(23, 67, 0)), False)
sketch7.addGeometry(Part.ArcOfCircle(Part.Circle(V(0, 0, 0), V(0, 0, 1), 71), math.radians(0), math.radians(71)), False)
sketch7.addConstraint(Sketcher.Constraint("Coincident", 0, 2, 1, 1))
sketch7.addConstraint(Sketcher.Constraint("Coincident", 1, 2, 2, 1))
sketch7.addConstraint(Sketcher.Constraint("Coincident", 2, 2, 0, 1))
sketch7.addConstraint(Sketcher.Constraint("Coincident", 3, 2, 4, 1))
sketch7.addConstraint(Sketcher.Constraint("Coincident", 4, 2, 5, 1))
sketch7.addConstraint(Sketcher.Constraint("Coincident", 5, 2, 3, 1))
sketch7.addConstraint(Sketcher.Constraint("Coincident", 6, 2, 7, 1))
sketch7.addConstraint(Sketcher.Constraint("Coincident", 7, 2, 8, 1))
sketch7.addConstraint(Sketcher.Constraint("Coincident", 8, 2, 9, 1))
sketch7.addConstraint(Sketcher.Constraint("Coincident", 9, 2, 6, 1))
sketch7.addConstraint(Sketcher.Constraint("Coincident", 10, 2, 11, 1))
sketch7.addConstraint(Sketcher.Constraint("Coincident", 11, 2, 12, 1))
sketch7.addConstraint(Sketcher.Constraint("Coincident", 12, 2, 13, 1))
sketch7.addConstraint(Sketcher.Constraint("Coincident", 13, 2, 10, 1))
sketch7.addConstraint(Sketcher.Constraint("Coincident", 14, 2, 15, 1))
sketch7.addConstraint(Sketcher.Constraint("Coincident", 15, 2, 16, 1))
sketch7.addConstraint(Sketcher.Constraint("Coincident", 16, 2, 17, 1))
sketch7.addConstraint(Sketcher.Constraint("Coincident", 17, 2, 14, 1))
sketch7.addConstraint(Sketcher.Constraint("Coincident", 18, 2, 19, 1))
sketch7.addConstraint(Sketcher.Constraint("Coincident", 19, 2, 20, 1))
sketch7.addConstraint(Sketcher.Constraint("Coincident", 20, 2, 21, 1))
sketch7.addConstraint(Sketcher.Constraint("Coincident", 21, 2, 18, 1))
sketch7.addConstraint(Sketcher.Constraint("Coincident", 22, 2, 23, 2))
sketch7.addConstraint(Sketcher.Constraint("Coincident", 23, 1, 24, 1))
sketch7.addConstraint(Sketcher.Constraint("Coincident", 24, 2, 25, 1))
sketch7.addConstraint(Sketcher.Constraint("Coincident", 25, 2, 22, 1))
sketch7.addConstraint(Sketcher.Constraint("Coincident", 26, 2, 27, 1))
sketch7.addConstraint(Sketcher.Constraint("Coincident", 27, 2, 28, 1))
sketch7.addConstraint(Sketcher.Constraint("Coincident", 28, 2, 29, 2))
sketch7.addConstraint(Sketcher.Constraint("Coincident", 29, 1, 26, 1))
sketch7.addConstraint(Sketcher.Constraint("Vertical", 0))
sketch7.addConstraint(Sketcher.Constraint("Vertical", 3))
sketch7.addConstraint(Sketcher.Constraint("Vertical", 6))
sketch7.addConstraint(Sketcher.Constraint("Vertical", 8))
sketch7.addConstraint(Sketcher.Constraint("Horizontal", 10))
sketch7.addConstraint(Sketcher.Constraint("Horizontal", 12))
sketch7.addConstraint(Sketcher.Constraint("Vertical", 14))
sketch7.addConstraint(Sketcher.Constraint("Vertical", 16))
sketch7.addConstraint(Sketcher.Constraint("Horizontal", 18))
sketch7.addConstraint(Sketcher.Constraint("Horizontal", 20))
sketch7.addConstraint(Sketcher.Constraint("Coincident", 23, 3, -1, 1))
sketch7.addConstraint(Sketcher.Constraint("Coincident", 25, 3, -1, 1))
sketch7.addConstraint(Sketcher.Constraint("Coincident", 27, 3, -1, 1))
sketch7.addConstraint(Sketcher.Constraint("Coincident", 29, 3, -1, 1))
sketch7.addConstraint(Sketcher.Constraint("Equal", 2, 4))
sketch7.addConstraint(Sketcher.Constraint("Equal", 25, 27))
sketch7.addConstraint(Sketcher.Constraint("Equal", 23, 29))
sketch7.addConstraint(Sketcher.Constraint("Symmetric", 2, 3, 4, 3, -2))
sketch7.addConstraint(Sketcher.Constraint("Symmetric", 0, 2, 5, 2, -2))
sketch7.addConstraint(Sketcher.Constraint("Symmetric", 10, 2, 18, 2, -2))
sketch7.addConstraint(Sketcher.Constraint("PointOnObject", 6, 2, -2))
sketch7.addConstraint(Sketcher.Constraint("PointOnObject", 14, 2, -2))
sketch7.addConstraint(Sketcher.Constraint("Parallel", 7, 9))
sketch7.addConstraint(Sketcher.Constraint("Perpendicular", 9, 11))
sketch7.addConstraint(Sketcher.Constraint("Parallel", 11, 13))
sketch7.addConstraint(Sketcher.Constraint("Perpendicular", 13, 15))
sketch7.addConstraint(Sketcher.Constraint("Parallel", 15, 17))
sketch7.addConstraint(Sketcher.Constraint("Perpendicular", 17, 19))
sketch7.addConstraint(Sketcher.Constraint("Parallel", 19, 21))
sketch7.addConstraint(Sketcher.Constraint("Horizontal", 1, 2, 4, 2))
sketch7.addConstraint(Sketcher.Constraint("Horizontal", 25, 2, 26, 2))
sketch7.addConstraint(Sketcher.Constraint("Horizontal", 24, 2, 27, 2))
sketch7.addConstraint(Sketcher.Constraint("Horizontal", 23, 1, 28, 2))
sketch7.addConstraint(Sketcher.Constraint("Horizontal", 22, 2, 29, 1))
sketch7.addConstraint(Sketcher.Constraint("Vertical", 10, 2, 24, 2))
sketch7.addConstraint(Sketcher.Constraint("Equal", 12, 18))
sketch7.addConstraint(Sketcher.Constraint("Equal", 20, 6))
sketch7.addConstraint(Sketcher.Constraint("Equal", 8, 14))
sketch7.addConstraint(Sketcher.Constraint("Equal", 9, 11))
sketch7.addConstraint(Sketcher.Constraint("Equal", 13, 15))
sketch7.addConstraint(Sketcher.Constraint("Equal", 17, 19))
sketch7.addConstraint(Sketcher.Constraint("Radius", 2, 80.0))
sketch7.addConstraint(Sketcher.Constraint("Angle", 1, Q("-60 deg")))
sketch7.addConstraint(Sketcher.Constraint("DistanceY", 0, 2, 0, 1, 71.5))
sketch7.addConstraint(Sketcher.Constraint("DistanceY", -1, 1, 2, 2, 11.0))
sketch7.addConstraint(Sketcher.Constraint("DistanceY", 1, 2, -1, 1, 103.25))
sketch7.addConstraint(Sketcher.Constraint("Radius", 23, 70.978542))
sketch7.addConstraint(Sketcher.Constraint("Radius", 25, 110.978542))
sketch7.addConstraint(Sketcher.Constraint("Distance", 22, 41.703291))
sketch7.addConstraint(Sketcher.Constraint("DistanceX", 10, 2, 10, 1, 23.988036))
sketch7.addConstraint(Sketcher.Constraint("DistanceX", 2, 3, -1, 1, 173.559191))
sketch7.addConstraint(Sketcher.Constraint("DistanceY", 8, 2, -1, 1, 101.755732))
sketch7.addConstraint(Sketcher.Constraint("DistanceY", 9, 2, -1, 1, 93.75972))
sketch7.addConstraint(Sketcher.Constraint("DistanceX", 10, 2, -1, 1, 35.71552))
sketch7.addConstraint(Sketcher.Constraint("DistanceY", 11, 2, -1, 1, 97.224658))
sketch7.addConstraint(Sketcher.Constraint("DistanceY", 16, 2, -1, 1, 62.30874))
sketch7.addConstraint(Sketcher.Constraint("DistanceX", 23, 1, -1, 1, 22.975811))
sketch7.addConstraint(Sketcher.Constraint("DistanceX", 25, 2, -1, 1, 109.888608))
sketch7.addConstraint(Sketcher.Constraint("DistanceX", 7, 2, 4, 2, 92.62774))
pocket5 = body.newObject("PartDesign::Pocket", "Pocket004")
pocket5.Profile = sketch7
pocket5.Length = 10
doc.recompute()

fillet = body.newObject("PartDesign::Fillet", "Fillet")
fillet.Base = (pocket5, edges_at(pocket5, [
    (-83.138, 2.5, -146),
    (-132.502, 2.5, 82.5),
    (-132.502, 2.5, 11),
    (-107.82, 2.5, -103.25),
]))
fillet.Radius = 10
doc.recompute()

fillet2 = body.newObject("PartDesign::Fillet", "Fillet001")
fillet2.Base = (fillet, edges_at(fillet, [
    (83.138, 2.5, -146),
    (-67.55, 2.5, 120),
    (67.55, 2.5, 120),
    (132.502, 2.5, 82.5),
    (132.502, 2.5, 11),
    (107.82, 2.5, -103.25),
]))
fillet2.Radius = 10

doc.recompute()
